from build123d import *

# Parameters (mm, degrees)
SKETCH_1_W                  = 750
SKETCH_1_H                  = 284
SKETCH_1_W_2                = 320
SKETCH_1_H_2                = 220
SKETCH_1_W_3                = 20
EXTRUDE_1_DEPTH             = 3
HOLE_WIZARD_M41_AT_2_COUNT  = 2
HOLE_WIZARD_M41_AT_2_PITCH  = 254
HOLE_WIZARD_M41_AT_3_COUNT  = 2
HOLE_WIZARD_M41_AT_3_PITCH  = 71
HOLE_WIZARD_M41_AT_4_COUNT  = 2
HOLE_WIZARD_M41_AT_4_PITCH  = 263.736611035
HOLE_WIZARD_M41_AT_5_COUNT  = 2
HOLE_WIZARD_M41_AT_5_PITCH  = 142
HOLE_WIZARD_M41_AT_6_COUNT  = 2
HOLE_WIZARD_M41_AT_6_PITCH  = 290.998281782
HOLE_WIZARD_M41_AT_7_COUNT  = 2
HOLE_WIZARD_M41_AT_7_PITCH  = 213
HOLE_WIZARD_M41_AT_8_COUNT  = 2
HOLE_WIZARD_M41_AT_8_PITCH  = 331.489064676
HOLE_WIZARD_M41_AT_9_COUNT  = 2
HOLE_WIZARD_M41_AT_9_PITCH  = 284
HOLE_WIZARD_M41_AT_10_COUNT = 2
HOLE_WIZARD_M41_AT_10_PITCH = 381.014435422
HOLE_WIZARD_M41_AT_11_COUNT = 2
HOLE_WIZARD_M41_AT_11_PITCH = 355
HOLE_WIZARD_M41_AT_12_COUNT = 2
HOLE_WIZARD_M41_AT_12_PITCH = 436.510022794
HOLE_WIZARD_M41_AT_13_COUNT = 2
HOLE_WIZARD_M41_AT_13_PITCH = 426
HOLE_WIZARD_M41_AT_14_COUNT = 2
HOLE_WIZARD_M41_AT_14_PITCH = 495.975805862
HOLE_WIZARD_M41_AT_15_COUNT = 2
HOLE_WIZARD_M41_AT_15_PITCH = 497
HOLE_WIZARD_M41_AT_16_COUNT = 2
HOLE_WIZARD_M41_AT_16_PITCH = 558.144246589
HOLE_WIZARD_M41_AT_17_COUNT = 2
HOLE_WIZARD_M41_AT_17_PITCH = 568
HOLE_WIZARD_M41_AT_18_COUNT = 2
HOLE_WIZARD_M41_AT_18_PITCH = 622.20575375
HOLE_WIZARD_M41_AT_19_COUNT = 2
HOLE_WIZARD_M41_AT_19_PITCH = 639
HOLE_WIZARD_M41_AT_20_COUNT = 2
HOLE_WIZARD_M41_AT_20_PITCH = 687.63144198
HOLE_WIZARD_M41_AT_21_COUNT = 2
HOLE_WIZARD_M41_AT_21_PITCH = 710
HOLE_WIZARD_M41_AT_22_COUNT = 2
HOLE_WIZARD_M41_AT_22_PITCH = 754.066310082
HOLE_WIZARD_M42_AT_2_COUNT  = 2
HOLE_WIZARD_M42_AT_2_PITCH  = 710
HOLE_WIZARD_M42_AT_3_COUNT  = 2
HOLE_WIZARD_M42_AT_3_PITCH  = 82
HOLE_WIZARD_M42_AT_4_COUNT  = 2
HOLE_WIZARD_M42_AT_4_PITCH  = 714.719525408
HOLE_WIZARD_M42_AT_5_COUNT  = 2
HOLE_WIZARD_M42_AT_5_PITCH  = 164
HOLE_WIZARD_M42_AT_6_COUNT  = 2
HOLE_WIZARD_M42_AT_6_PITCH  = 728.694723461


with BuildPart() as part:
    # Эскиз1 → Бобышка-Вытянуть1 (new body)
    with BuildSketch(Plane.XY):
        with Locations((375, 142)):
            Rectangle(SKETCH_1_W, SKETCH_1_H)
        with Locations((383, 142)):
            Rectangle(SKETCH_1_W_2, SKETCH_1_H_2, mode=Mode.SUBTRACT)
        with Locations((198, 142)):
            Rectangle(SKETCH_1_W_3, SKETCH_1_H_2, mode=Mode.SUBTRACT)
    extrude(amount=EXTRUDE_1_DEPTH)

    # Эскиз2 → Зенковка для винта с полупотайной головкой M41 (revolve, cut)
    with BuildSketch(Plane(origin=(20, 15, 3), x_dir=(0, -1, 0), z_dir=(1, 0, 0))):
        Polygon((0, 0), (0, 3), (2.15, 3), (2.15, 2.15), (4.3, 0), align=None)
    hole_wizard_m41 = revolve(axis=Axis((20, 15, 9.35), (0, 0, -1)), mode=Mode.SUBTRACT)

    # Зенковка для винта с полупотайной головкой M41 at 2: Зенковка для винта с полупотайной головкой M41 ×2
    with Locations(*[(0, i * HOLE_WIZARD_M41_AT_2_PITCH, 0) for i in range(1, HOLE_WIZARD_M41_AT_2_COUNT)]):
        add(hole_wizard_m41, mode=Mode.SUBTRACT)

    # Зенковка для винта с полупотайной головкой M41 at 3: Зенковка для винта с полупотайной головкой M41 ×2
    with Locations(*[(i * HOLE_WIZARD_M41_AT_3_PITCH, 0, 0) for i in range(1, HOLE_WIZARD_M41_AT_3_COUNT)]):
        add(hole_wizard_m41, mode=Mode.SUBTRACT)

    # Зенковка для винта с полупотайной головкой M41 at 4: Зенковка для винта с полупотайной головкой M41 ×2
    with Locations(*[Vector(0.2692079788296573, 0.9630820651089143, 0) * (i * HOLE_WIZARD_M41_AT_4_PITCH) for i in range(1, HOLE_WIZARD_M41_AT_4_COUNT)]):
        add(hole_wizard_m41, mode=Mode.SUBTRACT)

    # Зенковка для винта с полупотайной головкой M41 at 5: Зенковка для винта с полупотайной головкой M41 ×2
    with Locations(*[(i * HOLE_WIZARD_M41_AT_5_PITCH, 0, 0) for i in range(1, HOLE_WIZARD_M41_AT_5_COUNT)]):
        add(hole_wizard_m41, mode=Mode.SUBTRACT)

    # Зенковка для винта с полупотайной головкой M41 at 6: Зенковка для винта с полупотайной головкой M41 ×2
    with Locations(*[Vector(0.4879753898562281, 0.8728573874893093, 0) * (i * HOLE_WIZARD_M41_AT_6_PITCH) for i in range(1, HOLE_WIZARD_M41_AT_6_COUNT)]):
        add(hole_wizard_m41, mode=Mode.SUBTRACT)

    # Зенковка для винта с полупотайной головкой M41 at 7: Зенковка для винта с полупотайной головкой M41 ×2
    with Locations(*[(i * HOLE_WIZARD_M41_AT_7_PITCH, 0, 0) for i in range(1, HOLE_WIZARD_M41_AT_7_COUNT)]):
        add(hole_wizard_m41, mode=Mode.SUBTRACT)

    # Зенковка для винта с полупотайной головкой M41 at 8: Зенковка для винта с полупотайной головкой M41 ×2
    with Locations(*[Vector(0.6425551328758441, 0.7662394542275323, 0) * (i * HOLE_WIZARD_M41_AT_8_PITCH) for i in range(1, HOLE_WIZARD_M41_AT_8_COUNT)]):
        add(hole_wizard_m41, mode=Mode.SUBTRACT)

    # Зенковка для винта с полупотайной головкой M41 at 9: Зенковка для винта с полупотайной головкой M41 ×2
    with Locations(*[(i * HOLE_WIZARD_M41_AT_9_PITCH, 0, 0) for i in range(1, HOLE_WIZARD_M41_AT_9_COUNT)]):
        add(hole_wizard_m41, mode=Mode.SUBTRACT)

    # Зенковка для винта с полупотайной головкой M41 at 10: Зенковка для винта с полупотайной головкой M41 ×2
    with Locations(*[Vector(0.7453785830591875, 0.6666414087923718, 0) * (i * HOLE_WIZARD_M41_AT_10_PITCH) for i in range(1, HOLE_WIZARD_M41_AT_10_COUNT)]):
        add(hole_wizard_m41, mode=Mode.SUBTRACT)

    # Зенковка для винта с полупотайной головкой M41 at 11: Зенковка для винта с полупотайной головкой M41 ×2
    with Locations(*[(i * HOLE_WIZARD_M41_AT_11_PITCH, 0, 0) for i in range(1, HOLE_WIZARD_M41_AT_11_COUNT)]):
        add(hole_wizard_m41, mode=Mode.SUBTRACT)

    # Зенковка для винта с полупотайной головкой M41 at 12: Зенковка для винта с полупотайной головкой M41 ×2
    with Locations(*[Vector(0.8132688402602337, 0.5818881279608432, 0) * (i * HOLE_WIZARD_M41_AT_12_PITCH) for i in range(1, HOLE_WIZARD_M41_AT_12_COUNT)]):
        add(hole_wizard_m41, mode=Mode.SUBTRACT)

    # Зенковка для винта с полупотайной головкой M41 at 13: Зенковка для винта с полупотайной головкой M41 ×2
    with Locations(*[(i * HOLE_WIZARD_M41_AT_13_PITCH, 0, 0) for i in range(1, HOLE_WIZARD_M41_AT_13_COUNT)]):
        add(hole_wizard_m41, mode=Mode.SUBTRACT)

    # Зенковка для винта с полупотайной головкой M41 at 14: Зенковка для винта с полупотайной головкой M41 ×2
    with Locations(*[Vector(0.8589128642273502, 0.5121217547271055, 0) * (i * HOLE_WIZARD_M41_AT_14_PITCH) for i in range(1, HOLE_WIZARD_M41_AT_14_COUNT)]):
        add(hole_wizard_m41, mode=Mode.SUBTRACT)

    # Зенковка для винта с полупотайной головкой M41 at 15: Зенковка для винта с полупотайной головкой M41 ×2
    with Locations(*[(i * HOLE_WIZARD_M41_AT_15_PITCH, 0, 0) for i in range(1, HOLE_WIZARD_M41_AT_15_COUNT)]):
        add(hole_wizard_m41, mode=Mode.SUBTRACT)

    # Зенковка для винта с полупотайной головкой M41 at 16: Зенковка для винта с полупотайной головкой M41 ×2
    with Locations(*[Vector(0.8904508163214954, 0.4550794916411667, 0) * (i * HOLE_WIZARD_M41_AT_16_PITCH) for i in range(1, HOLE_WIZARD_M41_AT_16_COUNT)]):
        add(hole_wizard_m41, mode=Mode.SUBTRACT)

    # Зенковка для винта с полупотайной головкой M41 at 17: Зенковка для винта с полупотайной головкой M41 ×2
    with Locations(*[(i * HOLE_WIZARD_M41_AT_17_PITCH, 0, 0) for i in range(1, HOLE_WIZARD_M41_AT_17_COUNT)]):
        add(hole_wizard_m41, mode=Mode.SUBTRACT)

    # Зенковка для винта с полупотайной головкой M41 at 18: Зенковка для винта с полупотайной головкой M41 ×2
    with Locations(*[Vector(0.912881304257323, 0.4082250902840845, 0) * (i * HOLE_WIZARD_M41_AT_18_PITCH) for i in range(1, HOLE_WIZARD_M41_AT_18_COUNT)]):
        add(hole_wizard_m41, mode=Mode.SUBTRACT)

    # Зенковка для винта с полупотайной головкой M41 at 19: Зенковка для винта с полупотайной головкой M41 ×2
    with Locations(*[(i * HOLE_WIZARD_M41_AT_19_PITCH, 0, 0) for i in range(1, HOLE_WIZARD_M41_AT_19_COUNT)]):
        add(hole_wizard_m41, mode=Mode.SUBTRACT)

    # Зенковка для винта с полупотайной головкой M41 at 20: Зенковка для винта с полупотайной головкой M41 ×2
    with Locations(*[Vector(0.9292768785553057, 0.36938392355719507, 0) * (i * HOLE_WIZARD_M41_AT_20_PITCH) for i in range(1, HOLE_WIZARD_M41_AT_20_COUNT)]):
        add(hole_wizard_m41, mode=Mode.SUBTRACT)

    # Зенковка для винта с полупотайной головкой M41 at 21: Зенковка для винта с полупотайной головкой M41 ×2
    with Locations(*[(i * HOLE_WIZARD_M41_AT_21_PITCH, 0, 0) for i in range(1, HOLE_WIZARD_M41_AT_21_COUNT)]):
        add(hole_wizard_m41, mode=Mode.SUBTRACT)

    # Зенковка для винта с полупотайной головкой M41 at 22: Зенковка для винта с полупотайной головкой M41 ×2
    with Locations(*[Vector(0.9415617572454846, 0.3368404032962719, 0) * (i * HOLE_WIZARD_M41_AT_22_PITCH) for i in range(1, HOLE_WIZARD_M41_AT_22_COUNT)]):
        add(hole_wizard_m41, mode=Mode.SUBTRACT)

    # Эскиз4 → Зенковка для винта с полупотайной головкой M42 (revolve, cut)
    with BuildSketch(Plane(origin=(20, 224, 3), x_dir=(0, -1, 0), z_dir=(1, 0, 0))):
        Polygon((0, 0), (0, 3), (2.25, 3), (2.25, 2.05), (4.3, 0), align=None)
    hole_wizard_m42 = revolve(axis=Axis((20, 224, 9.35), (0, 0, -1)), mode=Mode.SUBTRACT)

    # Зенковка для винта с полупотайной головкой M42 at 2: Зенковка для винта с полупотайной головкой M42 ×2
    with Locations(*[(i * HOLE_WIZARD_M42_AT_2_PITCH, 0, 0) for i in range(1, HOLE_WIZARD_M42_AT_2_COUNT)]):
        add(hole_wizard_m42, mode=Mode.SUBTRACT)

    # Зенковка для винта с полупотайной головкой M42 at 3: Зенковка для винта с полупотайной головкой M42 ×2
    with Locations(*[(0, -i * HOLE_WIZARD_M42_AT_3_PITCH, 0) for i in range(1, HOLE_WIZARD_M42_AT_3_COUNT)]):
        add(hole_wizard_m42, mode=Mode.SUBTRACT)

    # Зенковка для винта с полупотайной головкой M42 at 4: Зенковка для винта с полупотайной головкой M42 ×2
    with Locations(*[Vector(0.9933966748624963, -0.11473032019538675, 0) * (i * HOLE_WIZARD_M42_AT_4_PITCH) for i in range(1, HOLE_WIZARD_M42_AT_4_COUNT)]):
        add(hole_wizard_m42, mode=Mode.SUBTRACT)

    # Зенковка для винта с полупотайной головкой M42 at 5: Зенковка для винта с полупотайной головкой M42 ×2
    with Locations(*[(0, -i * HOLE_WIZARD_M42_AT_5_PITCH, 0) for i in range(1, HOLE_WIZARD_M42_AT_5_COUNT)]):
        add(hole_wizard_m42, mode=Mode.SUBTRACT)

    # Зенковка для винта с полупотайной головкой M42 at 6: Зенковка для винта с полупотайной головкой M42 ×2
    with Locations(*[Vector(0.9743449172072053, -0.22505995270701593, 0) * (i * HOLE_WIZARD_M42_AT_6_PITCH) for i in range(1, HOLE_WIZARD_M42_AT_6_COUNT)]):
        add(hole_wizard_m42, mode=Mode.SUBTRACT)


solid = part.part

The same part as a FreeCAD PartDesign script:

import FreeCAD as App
import Part
import Sketcher
Q = App.Units.Quantity

doc = App.newDocument("Part")
body = doc.addObject("PartDesign::Body", "Body")

# Sketch on XY plane
sketch1 = doc.addObject("Sketcher::SketchObject", "Sketch")
body.addObject(sketch1)
sketch1.AttachmentSupport = (doc.XY_Plane, [""])
sketch1.MapMode = "FlatFace"
sketch1.addGeometry([
    Part.LineSegment(App.Vector(0, 284, 0), App.Vector(0, 0, 0)),  # 0
    Part.LineSegment(App.Vector(0, 0, 0), App.Vector(750, 0, 0)),  # 1
    Part.LineSegment(App.Vector(750, 0, 0), App.Vector(750, 284, 0)),  # 2
    Part.LineSegment(App.Vector(750, 284, 0), App.Vector(0, 284, 0)),  # 3
    Part.LineSegment(App.Vector(208, 32, 0), App.Vector(188, 32, 0)),  # 4
    Part.LineSegment(App.Vector(188, 32, 0), App.Vector(188, 252, 0)),  # 5
    Part.LineSegment(App.Vector(188, 252, 0), App.Vector(208, 252, 0)),  # 6
    Part.LineSegment(App.Vector(208, 252, 0), App.Vector(208, 32, 0)),  # 7
    Part.LineSegment(App.Vector(543, 32, 0), App.Vector(223, 32, 0)),  # 8
    Part.LineSegment(App.Vector(223, 32, 0), App.Vector(223, 252, 0)),  # 9
    Part.LineSegment(App.Vector(223, 252, 0), App.Vector(543, 252, 0)),  # 10
    Part.LineSegment(App.Vector(543, 252, 0), App.Vector(543, 32, 0)),  # 11
], False)
sketch1.addConstraint([
    Sketcher.Constraint("Coincident", 0, 2, 1, 1),
    Sketcher.Constraint("Coincident", 1, 2, 2, 1),
    Sketcher.Constraint("Coincident", 2, 2, 3, 1),
    Sketcher.Constraint("Coincident", 3, 2, 0, 1),
    Sketcher.Constraint("Coincident", 4, 2, 5, 1),
    Sketcher.Constraint("Coincident", 5, 2, 6, 1),
    Sketcher.Constraint("Coincident", 6, 2, 7, 1),
    Sketcher.Constraint("Coincident", 7, 2, 4, 1),
    Sketcher.Constraint("Coincident", 8, 2, 9, 1),
    Sketcher.Constraint("Coincident", 9, 2, 10, 1),
    Sketcher.Constraint("Coincident", 10, 2, 11, 1),
    Sketcher.Constraint("Coincident", 11, 2, 8, 1),
    Sketcher.Constraint("Vertical", 0),
    Sketcher.Constraint("Horizontal", 1),
    Sketcher.Constraint("Vertical", 2),
    Sketcher.Constraint("Horizontal", 3),
    Sketcher.Constraint("Horizontal", 4),
    Sketcher.Constraint("Vertical", 5),
    Sketcher.Constraint("Horizontal", 6),
    Sketcher.Constraint("Vertical", 7),
    Sketcher.Constraint("Horizontal", 8),
    Sketcher.Constraint("Vertical", 9),
    Sketcher.Constraint("Horizontal", 10),
    Sketcher.Constraint("Vertical", 11),
    Sketcher.Constraint("Coincident", 0, 2, -1, 1),
    Sketcher.Constraint("Horizontal", 7, 2, 8, 2),
    Sketcher.Constraint("Horizontal", 6, 2, 9, 2),
    Sketcher.Constraint("DistanceX", 1, 1, 1, 2, Q("750 mm")),
    Sketcher.Constraint("DistanceX", 4, 2, 4, 1, Q("20 mm")),
    Sketcher.Constraint("DistanceX", 8, 2, 8, 1, Q("320 mm")),
    Sketcher.Constraint("DistanceY", 0, 2, 0, 1, Q("284 mm")),
    Sketcher.Constraint("DistanceY", 5, 1, 5, 2, Q("220 mm")),
    Sketcher.Constraint("DistanceX", -1, 1, 4, 2, Q("188 mm")),
    Sketcher.Constraint("DistanceY", -1, 1, 4, 2, Q("32 mm")),
    Sketcher.Constraint("DistanceX", -1, 1, 8, 2, Q("223 mm")),
])
pad1 = doc.addObject("PartDesign::Pad", "Pad")
body.addObject(pad1)
pad1.Profile = sketch1
pad1.Length = 3

# Sketch on YZ plane
sketch2 = doc.addObject("Sketcher::SketchObject", "Sketch001")
body.addObject(sketch2)
sketch2.AttachmentSupport = (doc.YZ_Plane, [""])
sketch2.MapMode = "FlatFace"
sketch2.AttachmentOffset = App.Placement(App.Vector(0, 0, 20), App.Rotation())
sketch2.addGeometry([
    Part.LineSegment(App.Vector(15, 0, 0), App.Vector(15, 3, 0)),  # 0
    Part.LineSegment(App.Vector(15, 3, 0), App.Vector(10.7, 3, 0)),  # 1
    Part.LineSegment(App.Vector(10.7, 3, 0), App.Vector(12.8, 0.8, 0)),  # 2
    Part.LineSegment(App.Vector(12.8, 0.8, 0), App.Vector(12.8, 0, 0)),  # 3
    Part.LineSegment(App.Vector(12.8, 0, 0), App.Vector(15, 0, 0)),  # 4
], False)
sketch2.addGeometry(Part.LineSegment(App.Vector(15, 3, 0), App.Vector(15, 0, 0)), True)  # axis
sketch2.addConstraint([
    Sketcher.Constraint("Coincident", 0, 2, 1, 1),
    Sketcher.Constraint("Coincident", 1, 2, 2, 1),
    Sketcher.Constraint("Coincident", 2, 2, 3, 1),
    Sketcher.Constraint("Coincident", 3, 2, 4, 1),
    Sketcher.Constraint("Coincident", 4, 2, 0, 1),
    Sketcher.Constraint("Vertical", 0),
    Sketcher.Constraint("Horizontal", 1),
    Sketcher.Constraint("Vertical", 3),
    Sketcher.Constraint("Horizontal", 4),
    Sketcher.Constraint("Vertical", 5),
    Sketcher.Constraint("Coincident", 5, 1, 0, 2),
    Sketcher.Constraint("PointOnObject", 3, 2, -1),
    Sketcher.Constraint("PointOnObject", 5, 2, -1),
    Sketcher.Constraint("DistanceY", 0, 1, 0, 2, Q("3 mm")),
    Sketcher.Constraint("Angle", 2, Q("-45 deg")),
    Sketcher.Constraint("DistanceX", 1, 2, 1, 1, Q("4.3 mm")),
    Sketcher.Constraint("DistanceX", -1, 1, 0, 2, Q("15 mm")),
    Sketcher.Constraint("DistanceX", 4, 1, 4, 2, Q("2.15 mm")),
])
groove = doc.addObject("PartDesign::Groove", "Groove")
body.addObject(groove)
groove.Profile = sketch2
groove.ReferenceAxis = (sketch2, ["Axis0"])
groove.Angle = 360
doc.recompute()

linearpattern = doc.addObject("PartDesign::LinearPattern", "LinearPattern")
body.addObject(linearpattern)
linearpattern.Originals = [groove]
linearpattern.Direction = (doc.Y_Axis, [""])
linearpattern.Mode = "offset"
linearpattern.Offset = 254
linearpattern.Occurrences = 2
body.Tip = linearpattern
doc.recompute()

linearpattern2 = doc.addObject("PartDesign::LinearPattern", "LinearPattern001")
body.addObject(linearpattern2)
linearpattern2.Originals = [groove]
linearpattern2.Direction = (doc.X_Axis, [""])
linearpattern2.Mode = "offset"
linearpattern2.Offset = 71
linearpattern2.Occurrences = 2
body.Tip = linearpattern2
doc.recompute()

datumline = doc.addObject("PartDesign::Line", "DatumLine")
body.addObject(datumline)
datumline.Placement = App.Placement(App.Vector(0, 0, 0), App.Rotation(App.Vector(0, 0, 1), App.Vector(0.269207979, 0.963082065, 0)))
linearpattern3 = doc.addObject("PartDesign::LinearPattern", "LinearPattern002")
body.addObject(linearpattern3)
linearpattern3.Originals = [groove]
linearpattern3.Direction = (datumline, [""])
linearpattern3.Mode = "offset"
linearpattern3.Offset = 263.736611
linearpattern3.Occurrences = 2
body.Tip = linearpattern3
doc.recompute()

linearpattern4 = doc.addObject("PartDesign::LinearPattern", "LinearPattern003")
body.addObject(linearpattern4)
linearpattern4.Originals = [groove]
linearpattern4.Direction = (doc.X_Axis, [""])
linearpattern4.Mode = "offset"
linearpattern4.Offset = 142
linearpattern4.Occurrences = 2
body.Tip = linearpattern4
doc.recompute()

datumline2 = doc.addObject("PartDesign::Line", "DatumLine001")
body.addObject(datumline2)
datumline2.Placement = App.Placement(App.Vector(0, 0, 0), App.Rotation(App.Vector(0, 0, 1), App.Vector(0.48797539, 0.872857387, 0)))
linearpattern5 = doc.addObject("PartDesign::LinearPattern", "LinearPattern004")
body.addObject(linearpattern5)
linearpattern5.Originals = [groove]
linearpattern5.Direction = (datumline2, [""])
linearpattern5.Mode = "offset"
linearpattern5.Offset = 290.998282
linearpattern5.Occurrences = 2
body.Tip = linearpattern5
doc.recompute()

linearpattern6 = doc.addObject("PartDesign::LinearPattern", "LinearPattern005")
body.addObject(linearpattern6)
linearpattern6.Originals = [groove]
linearpattern6.Direction = (doc.X_Axis, [""])
linearpattern6.Mode = "offset"
linearpattern6.Offset = 213
linearpattern6.Occurrences = 2
body.Tip = linearpattern6
doc.recompute()

datumline3 = doc.addObject("PartDesign::Line", "DatumLine002")
body.addObject(datumline3)
datumline3.Placement = App.Placement(App.Vector(0, 0, 0), App.Rotation(App.Vector(0, 0, 1), App.Vector(0.642555133, 0.766239454, 0)))
linearpattern7 = doc.addObject("PartDesign::LinearPattern", "LinearPattern006")
body.addObject(linearpattern7)
linearpattern7.Originals = [groove]
linearpattern7.Direction = (datumline3, [""])
linearpattern7.Mode = "offset"
linearpattern7.Offset = 331.489065
linearpattern7.Occurrences = 2
body.Tip = linearpattern7
doc.recompute()

linearpattern8 = doc.addObject("PartDesign::LinearPattern", "LinearPattern007")
body.addObject(linearpattern8)
linearpattern8.Originals = [groove]
linearpattern8.Direction = (doc.X_Axis, [""])
linearpattern8.Mode = "offset"
linearpattern8.Offset = 284
linearpattern8.Occurrences = 2
body.Tip = linearpattern8
doc.recompute()

datumline4 = doc.addObject("PartDesign::Line", "DatumLine003")
body.addObject(datumline4)
datumline4.Placement = App.Placement(App.Vector(0, 0, 0), App.Rotation(App.Vector(0, 0, 1), App.Vector(0.745378583, 0.666641409, 0)))
linearpattern9 = doc.addObject("PartDesign::LinearPattern", "LinearPattern008")
body.addObject(linearpattern9)
linearpattern9.Originals = [groove]
linearpattern9.Direction = (datumline4, [""])
linearpattern9.Mode = "offset"
linearpattern9.Offset = 381.014435
linearpattern9.Occurrences = 2
body.Tip = linearpattern9
doc.recompute()

linearpattern10 = doc.addObject("PartDesign::LinearPattern", "LinearPattern009")
body.addObject(linearpattern10)
linearpattern10.Originals = [groove]
linearpattern10.Direction = (doc.X_Axis, [""])
linearpattern10.Mode = "offset"
linearpattern10.Offset = 355
linearpattern10.Occurrences = 2
body.Tip = linearpattern10
doc.recompute()

datumline5 = doc.addObject("PartDesign::Line", "DatumLine004")
body.addObject(datumline5)
datumline5.Placement = App.Placement(App.Vector(0, 0, 0), App.Rotation(App.Vector(0, 0, 1), App.Vector(0.81326884, 0.581888128, 0)))
linearpattern11 = doc.addObject("PartDesign::LinearPattern", "LinearPattern010")
body.addObject(linearpattern11)
linearpattern11.Originals = [groove]
linearpattern11.Direction = (datumline5, [""])
linearpattern11.Mode = "offset"
linearpattern11.Offset = 436.510023
linearpattern11.Occurrences = 2
body.Tip = linearpattern11
doc.recompute()

linearpattern12 = doc.addObject("PartDesign::LinearPattern", "LinearPattern011")
body.addObject(linearpattern12)
linearpattern12.Originals = [groove]
linearpattern12.Direction = (doc.X_Axis, [""])
linearpattern12.Mode = "offset"
linearpattern12.Offset = 426
linearpattern12.Occurrences = 2
body.Tip = linearpattern12
doc.recompute()

datumline6 = doc.addObject("PartDesign::Line", "DatumLine005")
body.addObject(datumline6)
datumline6.Placement = App.Placement(App.Vector(0, 0, 0), App.Rotation(App.Vector(0, 0, 1), App.Vector(0.858912864, 0.512121755, 0)))
linearpattern13 = doc.addObject("PartDesign::LinearPattern", "LinearPattern012")
body.addObject(linearpattern13)
linearpattern13.Originals = [groove]
linearpattern13.Direction = (datumline6, [""])
linearpattern13.Mode = "offset"
linearpattern13.Offset = 495.975806
linearpattern13.Occurrences = 2
body.Tip = linearpattern13
doc.recompute()

linearpattern14 = doc.addObject("PartDesign::LinearPattern", "LinearPattern013")
body.addObject(linearpattern14)
linearpattern14.Originals = [groove]
linearpattern14.Direction = (doc.X_Axis, [""])
linearpattern14.Mode = "offset"
linearpattern14.Offset = 497
linearpattern14.Occurrences = 2
body.Tip = linearpattern14
doc.recompute()

datumline7 = doc.addObject("PartDesign::Line", "DatumLine006")
body.addObject(datumline7)
datumline7.Placement = App.Placement(App.Vector(0, 0, 0), App.Rotation(App.Vector(0, 0, 1), App.Vector(0.890450816, 0.455079492, 0)))
linearpattern15 = doc.addObject("PartDesign::LinearPattern", "LinearPattern014")
body.addObject(linearpattern15)
linearpattern15.Originals = [groove]
linearpattern15.Direction = (datumline7, [""])
linearpattern15.Mode = "offset"
linearpattern15.Offset = 558.144247
linearpattern15.Occurrences = 2
body.Tip = linearpattern15
doc.recompute()

linearpattern16 = doc.addObject("PartDesign::LinearPattern", "LinearPattern015")
body.addObject(linearpattern16)
linearpattern16.Originals = [groove]
linearpattern16.Direction = (doc.X_Axis, [""])
linearpattern16.Mode = "offset"
linearpattern16.Offset = 568
linearpattern16.Occurrences = 2
body.Tip = linearpattern16
doc.recompute()

datumline8 = doc.addObject("PartDesign::Line", "DatumLine007")
body.addObject(datumline8)
datumline8.Placement = App.Placement(App.Vector(0, 0, 0), App.Rotation(App.Vector(0, 0, 1), App.Vector(0.912881304, 0.40822509, 0)))
linearpattern17 = doc.addObject("PartDesign::LinearPattern", "LinearPattern016")
body.addObject(linearpattern17)
linearpattern17.Originals = [groove]
linearpattern17.Direction = (datumline8, [""])
linearpattern17.Mode = "offset"
linearpattern17.Offset = 622.205754
linearpattern17.Occurrences = 2
body.Tip = linearpattern17
doc.recompute()

linearpattern18 = doc.addObject("PartDesign::LinearPattern", "LinearPattern017")
body.addObject(linearpattern18)
linearpattern18.Originals = [groove]
linearpattern18.Direction = (doc.X_Axis, [""])
linearpattern18.Mode = "offset"
linearpattern18.Offset = 639
linearpattern18.Occurrences = 2
body.Tip = linearpattern18
doc.recompute()

datumline9 = doc.addObject("PartDesign::Line", "DatumLine008")
body.addObject(datumline9)
datumline9.Placement = App.Placement(App.Vector(0, 0, 0), App.Rotation(App.Vector(0, 0, 1), App.Vector(0.929276879, 0.369383924, 0)))
linearpattern19 = doc.addObject("PartDesign::LinearPattern", "LinearPattern018")
body.addObject(linearpattern19)
linearpattern19.Originals = [groove]
linearpattern19.Direction = (datumline9, [""])
linearpattern19.Mode = "offset"
linearpattern19.Offset = 687.631442
linearpattern19.Occurrences = 2
body.Tip = linearpattern19
doc.recompute()

linearpattern20 = doc.addObject("PartDesign::LinearPattern", "LinearPattern019")
body.addObject(linearpattern20)
linearpattern20.Originals = [groove]
linearpattern20.Direction = (doc.X_Axis, [""])
linearpattern20.Mode = "offset"
linearpattern20.Offset = 710
linearpattern20.Occurrences = 2
body.Tip = linearpattern20
doc.recompute()

datumline10 = doc.addObject("PartDesign::Line", "DatumLine009")
body.addObject(datumline10)
datumline10.Placement = App.Placement(App.Vector(0, 0, 0), App.Rotation(App.Vector(0, 0, 1), App.Vector(0.941561757, 0.336840403, 0)))
linearpattern21 = doc.addObject("PartDesign::LinearPattern", "LinearPattern020")
body.addObject(linearpattern21)
linearpattern21.Originals = [groove]
linearpattern21.Direction = (datumline10, [""])
linearpattern21.Mode = "offset"
linearpattern21.Offset = 754.06631
linearpattern21.Occurrences = 2
body.Tip = linearpattern21

# Sketch on YZ plane
sketch3 = doc.addObject("Sketcher::SketchObject", "Sketch002")
body.addObject(sketch3)
sketch3.AttachmentSupport = (doc.YZ_Plane, [""])
sketch3.MapMode = "FlatFace"
sketch3.AttachmentOffset = App.Placement(App.Vector(0, 0, 20), App.Rotation())
sketch3.addGeometry([
    Part.LineSegment(App.Vector(224, 0, 0), App.Vector(224, 3, 0)),  # 0
    Part.LineSegment(App.Vector(224, 3, 0), App.Vector(219.7, 3, 0)),  # 1
    Part.LineSegment(App.Vector(219.7, 3, 0), App.Vector(221.8, 0.9, 0)),  # 2
    Part.LineSegment(App.Vector(221.8, 0.9, 0), App.Vector(221.8, 0, 0)),  # 3
    Part.LineSegment(App.Vector(221.8, 0, 0), App.Vector(224, 0, 0)),  # 4
], False)
sketch3.addGeometry(Part.LineSegment(App.Vector(224, 3, 0), App.Vector(224, 0, 0)), True)  # axis
sketch3.addConstraint([
    Sketcher.Constraint("Coincident", 0, 2, 1, 1),
    Sketcher.Constraint("Coincident", 1, 2, 2, 1),
    Sketcher.Constraint("Coincident", 2, 2, 3, 1),
    Sketcher.Constraint("Coincident", 3, 2, 4, 1),
    Sketcher.Constraint("Coincident", 4, 2, 0, 1),
    Sketcher.Constraint("Vertical", 0),
    Sketcher.Constraint("Horizontal", 1),
    Sketcher.Constraint("Vertical", 3),
    Sketcher.Constraint("Horizontal", 4),
    Sketcher.Constraint("Vertical", 5),
    Sketcher.Constraint("Coincident", 5, 1, 0, 2),
    Sketcher.Constraint("PointOnObject", 3, 2, -1),
    Sketcher.Constraint("PointOnObject", 5, 2, -1),
    Sketcher.Constraint("DistanceY", 0, 1, 0, 2, Q("3 mm")),
    Sketcher.Constraint("Angle", 2, Q("-45 deg")),
    Sketcher.Constraint("DistanceX", 1, 2, 1, 1, Q("4.3 mm")),
    Sketcher.Constraint("DistanceX", -1, 1, 0, 2, Q("224 mm")),
    Sketcher.Constraint("DistanceX", 4, 1, 4, 2, Q("2.25 mm")),
])
groove2 = doc.addObject("PartDesign::Groove", "Groove001")
body.addObject(groove2)
groove2.Profile = sketch3
groove2.ReferenceAxis = (sketch3, ["Axis0"])
groove2.Angle = 360
doc.recompute()

linearpattern22 = doc.addObject("PartDesign::LinearPattern", "LinearPattern021")
body.addObject(linearpattern22)
linearpattern22.Originals = [groove2]
linearpattern22.Direction = (doc.X_Axis, [""])
linearpattern22.Mode = "offset"
linearpattern22.Offset = 710
linearpattern22.Occurrences = 2
body.Tip = linearpattern22
doc.recompute()

linearpattern23 = doc.addObject("PartDesign::LinearPattern", "LinearPattern022")
body.addObject(linearpattern23)
linearpattern23.Originals = [groove2]
linearpattern23.Direction = (doc.Y_Axis, [""])
linearpattern23.Mode = "offset"
linearpattern23.Offset = 82
linearpattern23.Occurrences = 2
linearpattern23.Reversed = True
body.Tip = linearpattern23
doc.recompute()

datumline11 = doc.addObject("PartDesign::Line", "DatumLine010")
body.addObject(datumline11)
datumline11.Placement = App.Placement(App.Vector(0, 0, 0), App.Rotation(App.Vector(0, 0, 1), App.Vector(0.993396675, -0.11473032, 0)))
linearpattern24 = doc.addObject("PartDesign::LinearPattern", "LinearPattern023")
body.addObject(linearpattern24)
linearpattern24.Originals = [groove2]
linearpattern24.Direction = (datumline11, [""])
linearpattern24.Mode = "offset"
linearpattern24.Offset = 714.719525
linearpattern24.Occurrences = 2
body.Tip = linearpattern24
doc.recompute()

linearpattern25 = doc.addObject("PartDesign::LinearPattern", "LinearPattern024")
body.addObject(linearpattern25)
linearpattern25.Originals = [groove2]
linearpattern25.Direction = (doc.Y_Axis, [""])
linearpattern25.Mode = "offset"
linearpattern25.Offset = 164
linearpattern25.Occurrences = 2
linearpattern25.Reversed = True
body.Tip = linearpattern25
doc.recompute()

datumline12 = doc.addObject("PartDesign::Line", "DatumLine011")
body.addObject(datumline12)
datumline12.Placement = App.Placement(App.Vector(0, 0, 0), App.Rotation(App.Vector(0, 0, 1), App.Vector(0.974344917, -0.225059953, 0)))
linearpattern26 = doc.addObject("PartDesign::LinearPattern", "LinearPattern025")
body.addObject(linearpattern26)
linearpattern26.Originals = [groove2]
linearpattern26.Direction = (datumline12, [""])
linearpattern26.Mode = "offset"
linearpattern26.Offset = 728.694723
linearpattern26.Occurrences = 2
body.Tip = linearpattern26

doc.recompute()
